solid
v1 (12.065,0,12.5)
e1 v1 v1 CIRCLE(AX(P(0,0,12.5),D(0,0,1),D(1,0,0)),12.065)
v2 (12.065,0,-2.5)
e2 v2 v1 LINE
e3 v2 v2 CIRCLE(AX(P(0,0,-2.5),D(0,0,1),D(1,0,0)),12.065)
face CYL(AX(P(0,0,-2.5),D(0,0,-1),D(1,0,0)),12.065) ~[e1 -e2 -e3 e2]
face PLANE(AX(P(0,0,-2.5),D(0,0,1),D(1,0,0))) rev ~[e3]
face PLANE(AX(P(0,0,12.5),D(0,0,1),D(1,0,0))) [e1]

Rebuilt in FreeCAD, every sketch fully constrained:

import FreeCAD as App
import Part
import Sketcher

V = App.Vector

doc = App.newDocument("Part")
params = doc.addObject("Spreadsheet::Sheet", "Params")
for row, (alias, value) in enumerate([
    ("sketch1_diameter", "24.13 mm"),
    ("pad1_length", "15 mm"),
], start=1):
    params.set(f"A{row}", alias)
    params.set(f"B{row}", "=" + value)
    params.setAlias(f"B{row}", alias)

body = doc.addObject("PartDesign::Body", "Body")

sketch1 = body.newObject("Sketcher::SketchObject", "Sketch")
sketch1.AttachmentSupport = (doc.getObject("XY_Plane"), [""])
sketch1.MapMode = "FlatFace"
sketch1.AttachmentOffset = App.Placement(V(0, 0, -2.5), App.Rotation())
sketch1.addGeometry(Part.Circle(V(0, 0, 0), V(0, 0, 1), 12.065), False)
sketch1.addConstraint(Sketcher.Constraint("Coincident", 0, 3, -1, 1))
sketch1.addConstraint(Sketcher.Constraint("Diameter", 0, 24.13))
sketch1.setExpression("Constraints[1]", "Params.sketch1_diameter")
pad1 = body.newObject("PartDesign::Pad", "Pad")
pad1.Profile = sketch1
pad1.setExpression("Length", "Params.pad1_length")

doc.recompute()
